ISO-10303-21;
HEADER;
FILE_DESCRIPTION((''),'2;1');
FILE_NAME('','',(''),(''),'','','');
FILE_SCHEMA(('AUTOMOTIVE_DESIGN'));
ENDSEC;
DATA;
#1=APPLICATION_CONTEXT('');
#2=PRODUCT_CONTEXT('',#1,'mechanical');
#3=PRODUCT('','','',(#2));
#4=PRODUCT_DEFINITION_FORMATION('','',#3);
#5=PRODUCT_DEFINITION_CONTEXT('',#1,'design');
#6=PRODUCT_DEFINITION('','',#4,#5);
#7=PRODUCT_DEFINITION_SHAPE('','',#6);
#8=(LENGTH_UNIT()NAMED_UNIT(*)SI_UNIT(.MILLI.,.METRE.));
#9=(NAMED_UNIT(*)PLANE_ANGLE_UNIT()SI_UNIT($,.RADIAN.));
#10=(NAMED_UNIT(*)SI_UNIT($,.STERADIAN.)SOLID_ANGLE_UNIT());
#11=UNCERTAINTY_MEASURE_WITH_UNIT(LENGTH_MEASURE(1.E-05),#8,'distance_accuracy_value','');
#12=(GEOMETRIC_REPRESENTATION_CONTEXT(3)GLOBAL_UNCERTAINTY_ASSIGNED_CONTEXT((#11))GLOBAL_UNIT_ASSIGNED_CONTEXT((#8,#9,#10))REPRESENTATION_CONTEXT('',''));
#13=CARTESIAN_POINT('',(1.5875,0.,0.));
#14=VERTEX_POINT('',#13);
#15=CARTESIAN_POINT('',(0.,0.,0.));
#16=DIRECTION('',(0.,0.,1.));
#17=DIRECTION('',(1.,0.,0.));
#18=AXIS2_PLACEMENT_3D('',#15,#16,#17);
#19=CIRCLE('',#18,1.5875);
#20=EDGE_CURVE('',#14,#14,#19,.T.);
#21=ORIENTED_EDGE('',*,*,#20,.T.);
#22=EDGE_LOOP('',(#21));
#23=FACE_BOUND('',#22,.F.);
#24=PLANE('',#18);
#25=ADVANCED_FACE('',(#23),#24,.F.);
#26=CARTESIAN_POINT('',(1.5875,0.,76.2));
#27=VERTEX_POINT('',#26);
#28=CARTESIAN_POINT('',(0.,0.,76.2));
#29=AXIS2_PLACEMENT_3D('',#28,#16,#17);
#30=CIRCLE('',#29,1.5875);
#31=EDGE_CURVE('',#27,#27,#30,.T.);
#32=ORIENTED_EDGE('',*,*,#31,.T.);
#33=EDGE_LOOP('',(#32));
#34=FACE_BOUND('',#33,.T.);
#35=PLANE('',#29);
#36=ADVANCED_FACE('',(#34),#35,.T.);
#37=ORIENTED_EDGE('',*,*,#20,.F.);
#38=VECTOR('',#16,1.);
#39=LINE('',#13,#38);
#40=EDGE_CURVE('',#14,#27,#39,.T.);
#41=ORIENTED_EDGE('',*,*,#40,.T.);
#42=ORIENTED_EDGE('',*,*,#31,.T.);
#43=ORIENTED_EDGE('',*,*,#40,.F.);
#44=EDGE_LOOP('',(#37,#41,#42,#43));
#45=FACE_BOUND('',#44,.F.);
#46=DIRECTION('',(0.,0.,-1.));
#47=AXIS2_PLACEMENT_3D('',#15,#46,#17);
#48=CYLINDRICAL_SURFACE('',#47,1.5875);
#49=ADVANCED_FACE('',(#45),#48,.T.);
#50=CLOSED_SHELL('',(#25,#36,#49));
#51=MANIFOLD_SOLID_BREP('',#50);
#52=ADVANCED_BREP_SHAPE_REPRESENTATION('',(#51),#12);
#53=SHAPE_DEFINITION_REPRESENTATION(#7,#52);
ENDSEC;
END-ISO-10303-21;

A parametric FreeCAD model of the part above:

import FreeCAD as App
import Part
import Sketcher
from FreeCAD import Vector
Q = App.Units.Quantity

doc = App.newDocument("Part")
body = doc.addObject("PartDesign::Body", "Body")

# Sketch on XY plane
sketch1 = body.newObject("Sketcher::SketchObject", "Sketch")
sketch1.AttachmentSupport = (doc.getObject("XY_Plane"), [""])
sketch1.MapMode = "FlatFace"
sketch1.addGeometry(Part.Circle(Vector(0, 0, 0), Vector(0, 0, 1), 1.6), False)
sketch1.addConstraint(Sketcher.Constraint("Coincident", 0, 3, -1, 1))
sketch1.addConstraint(Sketcher.Constraint("Diameter", 0, Q("0.125 in")))
pad1 = body.newObject("PartDesign::Pad", "Pad")
pad1.Profile = sketch1
pad1.Length = Q("3 in")

doc.recompute()
